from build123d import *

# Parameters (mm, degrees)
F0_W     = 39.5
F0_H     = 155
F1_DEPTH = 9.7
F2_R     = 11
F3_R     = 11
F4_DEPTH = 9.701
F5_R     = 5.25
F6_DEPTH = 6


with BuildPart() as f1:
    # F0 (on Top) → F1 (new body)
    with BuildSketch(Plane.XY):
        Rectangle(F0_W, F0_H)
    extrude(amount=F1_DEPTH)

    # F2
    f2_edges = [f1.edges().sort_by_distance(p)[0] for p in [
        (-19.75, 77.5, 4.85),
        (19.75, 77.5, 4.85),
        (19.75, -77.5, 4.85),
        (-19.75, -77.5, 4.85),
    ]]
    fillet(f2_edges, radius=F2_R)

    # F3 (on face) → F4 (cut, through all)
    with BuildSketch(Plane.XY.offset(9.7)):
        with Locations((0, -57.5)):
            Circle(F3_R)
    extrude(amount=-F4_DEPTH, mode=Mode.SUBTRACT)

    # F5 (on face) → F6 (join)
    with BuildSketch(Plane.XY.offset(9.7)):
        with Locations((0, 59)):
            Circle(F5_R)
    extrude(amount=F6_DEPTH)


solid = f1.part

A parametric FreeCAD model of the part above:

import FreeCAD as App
import Part
import Sketcher
from FreeCAD import Vector


def edges_at(feature, points):
    """Names of the edges that pass closest to the given points."""
    edges = feature.Shape.Edges
    near = lambda p: min(range(len(edges)), key=lambda i: edges[i].distToShape(Part.Vertex(*p))[0])
    return sorted({f"Edge{near(p) + 1}" for p in points})


def add_polygon(sketch, points):
    """Adds a closed chain of lines whose ends are joined by coincident constraints."""
    first, n = sketch.GeometryCount, len(points)
    for a, b in zip(points, points[1:] + points[:1]):
        sketch.addGeometry(Part.LineSegment(App.Vector(*a, 0), App.Vector(*b, 0)), False)
    for i in range(n):
        sketch.addConstraint(Sketcher.Constraint("Coincident", first + i, 2, first + (i + 1) % n, 1))

doc = App.newDocument("Part")
body = doc.addObject("PartDesign::Body", "Body")

# Sketch on XY plane
sketch1 = body.newObject("Sketcher::SketchObject", "Sketch")
sketch1.AttachmentSupport = (doc.getObject("XY_Plane"), [""])
sketch1.MapMode = "FlatFace"
add_polygon(sketch1, [(-20, 78), (-20, -78), (20, -78), (20, 78)])  # lines 0-3
sketch1.addConstraint([
    Sketcher.Constraint("Vertical", 0),
    Sketcher.Constraint("Horizontal", 1),
    Sketcher.Constraint("Vertical", 2),
    Sketcher.Constraint("Horizontal", 3),
    Sketcher.Constraint("Symmetric", 0, 2, 2, 2, -1, 1),
    Sketcher.Constraint("DistanceY", 0, 2, 0, 1, 155.0),
    Sketcher.Constraint("DistanceX", 1, 1, 1, 2, 39.5),
])
pad1 = body.newObject("PartDesign::Pad", "Pad")
pad1.Profile = sketch1
pad1.Length = 9.7
doc.recompute()

fillet = body.newObject("PartDesign::Fillet", "Fillet")
fillet.Base = (pad1, edges_at(pad1, [
    (-19.75, 77.5, 4.85),
    (19.75, 77.5, 4.85),
    (19.75, -77.5, 4.85),
    (-19.75, -77.5, 4.85),
]))
fillet.Radius = 11

# Sketch on XY plane
sketch2 = body.newObject("Sketcher::SketchObject", "Sketch001")
sketch2.AttachmentSupport = (doc.getObject("XY_Plane"), [""])
sketch2.MapMode = "FlatFace"
sketch2.AttachmentOffset = App.Placement(Vector(0, 0, 9.7), App.Rotation())
sketch2.addGeometry(Part.Circle(Vector(0, -58, 0), Vector(0, 0, 1), 11), False)
sketch2.addConstraint([
    Sketcher.Constraint("PointOnObject", 0, 3, -2),
    Sketcher.Constraint("Diameter", 0, 22.0),
    Sketcher.Constraint("DistanceY", 0, 3, -1, 1, 57.5),
])
pocket1 = body.newObject("PartDesign::Pocket", "Pocket")
pocket1.Profile = sketch2
pocket1.Type = "ThroughAll"

# Sketch on XY plane
sketch3 = body.newObject("Sketcher::SketchObject", "Sketch002")
sketch3.AttachmentSupport = (doc.getObject("XY_Plane"), [""])
sketch3.MapMode = "FlatFace"
sketch3.AttachmentOffset = App.Placement(Vector(0, 0, 9.7), App.Rotation())
sketch3.addGeometry(Part.Circle(Vector(0, 59, 0), Vector(0, 0, 1), 5), False)
sketch3.addConstraint([
    Sketcher.Constraint("PointOnObject", 0, 3, -2),
    Sketcher.Constraint("Diameter", 0, 10.5),
    Sketcher.Constraint("DistanceY", -1, 1, 0, 3, 59.0),
])
pad2 = body.newObject("PartDesign::Pad", "Pad001")
pad2.Profile = sketch3
pad2.Length = 6

doc.recompute()
